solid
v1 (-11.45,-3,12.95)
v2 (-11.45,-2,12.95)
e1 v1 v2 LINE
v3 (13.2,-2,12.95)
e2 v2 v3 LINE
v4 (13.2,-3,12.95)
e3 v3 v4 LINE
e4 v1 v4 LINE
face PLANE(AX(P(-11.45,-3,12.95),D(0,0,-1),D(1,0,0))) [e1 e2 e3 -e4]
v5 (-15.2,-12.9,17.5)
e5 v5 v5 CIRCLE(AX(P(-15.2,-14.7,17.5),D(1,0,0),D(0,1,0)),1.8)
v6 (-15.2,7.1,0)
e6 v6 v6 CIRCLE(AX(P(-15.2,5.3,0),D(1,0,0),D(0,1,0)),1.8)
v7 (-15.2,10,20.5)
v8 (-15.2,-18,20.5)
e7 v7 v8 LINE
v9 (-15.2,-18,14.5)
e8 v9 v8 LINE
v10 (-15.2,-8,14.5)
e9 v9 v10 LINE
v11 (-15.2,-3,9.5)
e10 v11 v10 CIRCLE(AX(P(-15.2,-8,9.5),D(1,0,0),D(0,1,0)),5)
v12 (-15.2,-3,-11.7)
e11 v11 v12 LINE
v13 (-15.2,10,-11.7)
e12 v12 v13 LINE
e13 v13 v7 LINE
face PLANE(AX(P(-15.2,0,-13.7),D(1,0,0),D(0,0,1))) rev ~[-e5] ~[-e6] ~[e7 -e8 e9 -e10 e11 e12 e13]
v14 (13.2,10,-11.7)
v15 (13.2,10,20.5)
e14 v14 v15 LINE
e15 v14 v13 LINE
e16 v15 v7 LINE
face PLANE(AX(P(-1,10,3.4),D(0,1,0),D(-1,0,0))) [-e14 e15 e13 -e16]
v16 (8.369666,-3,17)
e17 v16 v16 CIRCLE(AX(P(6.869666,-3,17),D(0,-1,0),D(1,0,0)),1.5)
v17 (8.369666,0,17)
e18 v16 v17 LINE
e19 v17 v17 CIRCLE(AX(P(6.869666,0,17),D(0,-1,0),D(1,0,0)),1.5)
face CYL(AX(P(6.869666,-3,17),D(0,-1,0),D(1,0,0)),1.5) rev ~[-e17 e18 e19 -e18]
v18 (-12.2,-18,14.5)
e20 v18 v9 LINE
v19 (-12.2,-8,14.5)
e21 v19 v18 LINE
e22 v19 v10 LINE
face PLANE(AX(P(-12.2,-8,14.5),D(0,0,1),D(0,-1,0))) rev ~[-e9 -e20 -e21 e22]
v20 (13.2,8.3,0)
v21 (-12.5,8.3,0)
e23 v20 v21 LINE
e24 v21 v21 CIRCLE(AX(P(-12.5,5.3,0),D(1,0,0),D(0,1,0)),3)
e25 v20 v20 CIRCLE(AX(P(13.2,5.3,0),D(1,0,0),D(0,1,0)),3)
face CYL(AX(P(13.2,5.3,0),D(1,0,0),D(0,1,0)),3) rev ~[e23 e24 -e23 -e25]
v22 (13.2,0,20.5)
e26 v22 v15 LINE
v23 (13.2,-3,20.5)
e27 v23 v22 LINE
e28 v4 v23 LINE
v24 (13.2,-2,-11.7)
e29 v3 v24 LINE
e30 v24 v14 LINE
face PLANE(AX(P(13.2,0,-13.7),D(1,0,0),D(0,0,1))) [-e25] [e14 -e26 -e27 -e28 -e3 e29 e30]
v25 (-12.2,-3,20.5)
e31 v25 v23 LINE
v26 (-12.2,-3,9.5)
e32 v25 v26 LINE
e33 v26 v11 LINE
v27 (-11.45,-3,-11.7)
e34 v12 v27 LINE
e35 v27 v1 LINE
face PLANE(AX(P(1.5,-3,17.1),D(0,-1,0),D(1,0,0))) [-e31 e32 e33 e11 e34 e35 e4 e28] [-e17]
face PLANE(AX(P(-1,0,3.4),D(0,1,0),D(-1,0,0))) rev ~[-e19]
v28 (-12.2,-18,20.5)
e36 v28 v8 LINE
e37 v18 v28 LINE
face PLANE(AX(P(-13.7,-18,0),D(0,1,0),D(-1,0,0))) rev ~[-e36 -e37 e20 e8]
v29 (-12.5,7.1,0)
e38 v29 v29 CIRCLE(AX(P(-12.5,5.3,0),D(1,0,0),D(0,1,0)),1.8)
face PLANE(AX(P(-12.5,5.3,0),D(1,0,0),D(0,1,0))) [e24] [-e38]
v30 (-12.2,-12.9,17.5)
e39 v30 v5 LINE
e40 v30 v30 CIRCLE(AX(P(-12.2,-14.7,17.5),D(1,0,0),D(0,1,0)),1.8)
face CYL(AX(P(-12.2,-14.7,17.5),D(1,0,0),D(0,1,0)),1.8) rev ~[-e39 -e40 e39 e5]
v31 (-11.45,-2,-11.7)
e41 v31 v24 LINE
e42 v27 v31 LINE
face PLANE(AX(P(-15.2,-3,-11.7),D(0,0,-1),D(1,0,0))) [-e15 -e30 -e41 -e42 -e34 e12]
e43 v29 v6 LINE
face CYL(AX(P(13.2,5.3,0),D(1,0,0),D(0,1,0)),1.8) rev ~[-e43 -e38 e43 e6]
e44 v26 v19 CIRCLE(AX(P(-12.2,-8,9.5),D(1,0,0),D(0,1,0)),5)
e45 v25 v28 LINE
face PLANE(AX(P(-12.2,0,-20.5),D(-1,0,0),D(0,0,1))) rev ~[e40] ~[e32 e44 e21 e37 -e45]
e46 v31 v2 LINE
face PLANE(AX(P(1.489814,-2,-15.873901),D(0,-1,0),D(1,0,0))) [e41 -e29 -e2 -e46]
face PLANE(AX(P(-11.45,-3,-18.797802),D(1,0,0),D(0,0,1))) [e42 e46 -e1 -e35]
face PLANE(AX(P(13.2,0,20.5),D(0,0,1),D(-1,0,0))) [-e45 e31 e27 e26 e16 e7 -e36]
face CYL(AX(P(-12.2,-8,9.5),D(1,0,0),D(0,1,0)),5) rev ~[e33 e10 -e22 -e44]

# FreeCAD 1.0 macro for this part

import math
import FreeCAD as App
import Part
import Sketcher
from FreeCAD import Vector


def add_polygon(sketch, points):
    """Adds a closed chain of lines whose ends are joined by coincident constraints."""
    first, n = sketch.GeometryCount, len(points)
    for a, b in zip(points, points[1:] + points[:1]):
        sketch.addGeometry(Part.LineSegment(App.Vector(*a, 0), App.Vector(*b, 0)), False)
    for i in range(n):
        sketch.addConstraint(Sketcher.Constraint("Coincident", first + i, 2, first + (i + 1) % n, 1))

doc = App.newDocument("Part")
body = doc.addObject("PartDesign::Body", "Body")

sketch1 = body.newObject("Sketcher::SketchObject", "Sketch")
sketch1.AttachmentSupport = (doc.getObject("XZ_Plane"), [""])
sketch1.MapMode = "FlatFace"
add_polygon(sketch1, [(-15, 14), (-15, -14), (15, -14), (15, 14)])
sketch1.addConstraint([
    Sketcher.Constraint("Vertical", 0),
    Sketcher.Constraint("Horizontal", 1),
    Sketcher.Constraint("Vertical", 2),
    Sketcher.Constraint("Horizontal", 3),
    Sketcher.Constraint("Symmetric", 0, 2, 2, 2, -1, 1),
    Sketcher.Constraint("DistanceX", 1, 1, 1, 2, 30.4),
    Sketcher.Constraint("DistanceY", 0, 2, 0, 1, 27.4),
])
pad1 = body.newObject("PartDesign::Pad", "Pad")
pad1.Profile = sketch1
pad1.Length = 3

sketch2 = body.newObject("Sketcher::SketchObject", "Sketch001")
sketch2.AttachmentSupport = (doc.getObject("XZ_Plane"), [""])
sketch2.MapMode = "FlatFace"
sketch2.AttachmentOffset = App.Placement(Vector(0, 0, 3), App.Rotation())
add_polygon(sketch2, [(-11, 13), (-11, -13), (14, -13), (14, 13)])
sketch2.addConstraint([
    Sketcher.Constraint("Vertical", 0),
    Sketcher.Constraint("Horizontal", 1),
    Sketcher.Constraint("Vertical", 2),
    Sketcher.Constraint("Horizontal", 3),
    Sketcher.Constraint("Equal", 3, 0),
    Sketcher.Constraint("DistanceX", 1, 1, 1, 2, 25.9),
    Sketcher.Constraint("DistanceX", 0, 2, -1, 1, 11.45),
    Sketcher.Constraint("DistanceY", 0, 2, -1, 1, 12.95),
])
pocket1 = body.newObject("PartDesign::Pocket", "Pocket")
pocket1.Profile = sketch2
pocket1.Length = 1

sketch3 = body.newObject("Sketcher::SketchObject", "Sketch002")
sketch3.AttachmentSupport = (doc.getObject("XZ_Plane"), [""])
sketch3.MapMode = "FlatFace"
add_polygon(sketch3, [(-12.2, 20.5), (-12.2, -20.5), (-15.2, -20.5), (-15.2, 20.5)])
sketch3.addConstraint([
    Sketcher.Constraint("Vertical", 0),
    Sketcher.Constraint("Horizontal", 1),
    Sketcher.Constraint("Vertical", 2),
    Sketcher.Constraint("Horizontal", 3),
    Sketcher.Constraint("DistanceX", 1, 2, 1, 1, 3.0),
    Sketcher.Constraint("DistanceY", 0, 2, 0, 1, 41.0),
    Sketcher.Constraint("DistanceX", 0, 2, -1, 1, 12.2),
    Sketcher.Constraint("DistanceY", 0, 2, -1, 1, 20.5),
])
pad2 = body.newObject("PartDesign::Pad", "Pad001")
pad2.Profile = sketch3
pad2.Length = 18

sketch4 = body.newObject("Sketcher::SketchObject", "Sketch003")
sketch4.AttachmentSupport = (doc.getObject("YZ_Plane"), [""])
sketch4.MapMode = "FlatFace"
sketch4.AttachmentOffset = App.Placement(Vector(0, 0, -12.2), App.Rotation())
sketch4.addGeometry([
    Part.LineSegment(Vector(-18, 14, 0), Vector(-18, -14, 0)),
    Part.LineSegment(Vector(-18, -14, 0), Vector(-8, -14, 0)),
    Part.ArcOfCircle(Part.Circle(Vector(-8, -10, 0), Vector(0, 0, 1), 5), math.radians(-90), math.radians(0)),
    Part.LineSegment(Vector(-3, -10, 0), Vector(-3, 10, 0)),
    Part.ArcOfCircle(Part.Circle(Vector(-8, 10, 0), Vector(0, 0, 1), 5), math.radians(0), math.radians(90)),
    Part.LineSegment(Vector(-8, 14, 0), Vector(-18, 14, 0)),
], False)
sketch4.addConstraint([
    Sketcher.Constraint("Coincident", 0, 2, 1, 1),
    Sketcher.Constraint("Tangent", 1, 2, 2, 1),
    Sketcher.Constraint("Tangent", 2, 2, 3, 1),
    Sketcher.Constraint("Tangent", 3, 2, 4, 1),
    Sketcher.Constraint("Tangent", 4, 2, 5, 1),
    Sketcher.Constraint("Coincident", 5, 2, 0, 1),
    Sketcher.Constraint("Vertical", 0),
    Sketcher.Constraint("Horizontal", 1),
    Sketcher.Constraint("Vertical", 3),
    Sketcher.Constraint("Horizontal", 5),
    Sketcher.Constraint("Equal", 2, 4),
    Sketcher.Constraint("Radius", 2, 5.0),
    Sketcher.Constraint("DistanceX", 1, 1, 1, 2, 10.0),
    Sketcher.Constraint("DistanceY", 0, 2, 0, 1, 29.0),
    Sketcher.Constraint("DistanceX", 2, 3, -1, 1, 8.0),
    Sketcher.Constraint("DistanceY", 2, 3, -1, 1, 9.5),
])
pocket2 = body.newObject("PartDesign::Pocket", "Pocket001")
pocket2.Profile = sketch4
pocket2.Length = 25

sketch5 = body.newObject("Sketcher::SketchObject", "Sketch004")
sketch5.AttachmentSupport = (doc.getObject("YZ_Plane"), [""])
sketch5.MapMode = "FlatFace"
sketch5.AttachmentOffset = App.Placement(Vector(0, 0, -12.2), App.Rotation())
sketch5.addGeometry([
    Part.Circle(Vector(-14.7, -17.5, 0), Vector(0, 0, 1), 1.8),
    Part.Circle(Vector(-14.7, 17.5, 0), Vector(0, 0, 1), 1.8),
], False)
sketch5.addConstraint([
    Sketcher.Constraint("Equal", 0, 1),
    Sketcher.Constraint("Symmetric", 0, 3, 1, 3, -1),
    Sketcher.Constraint("Diameter", 0, 3.6),
    Sketcher.Constraint("DistanceY", 0, 3, 1, 3, 35.0),
    Sketcher.Constraint("DistanceX", 0, 3, -1, 1, 14.7),
])
pocket3 = body.newObject("PartDesign::Pocket", "Pocket002")
pocket3.Profile = sketch5
pocket3.Length = 25

sketch6 = body.newObject("Sketcher::SketchObject", "Sketch005")
sketch6.AttachmentSupport = (doc.getObject("XZ_Plane"), [""])
sketch6.MapMode = "FlatFace"
add_polygon(sketch6, [(-12, 20), (-12, 14), (15, 14), (15, 20)])
sketch6.addConstraint([
    Sketcher.Constraint("Vertical", 0),
    Sketcher.Constraint("Horizontal", 1),
    Sketcher.Constraint("Vertical", 2),
    Sketcher.Constraint("Horizontal", 3),
    Sketcher.Constraint("DistanceX", 1, 1, 1, 2, 27.4),
    Sketcher.Constraint("DistanceY", 0, 2, 0, 1, 6.8),
    Sketcher.Constraint("DistanceX", 0, 2, -1, 1, 12.2),
    Sketcher.Constraint("DistanceY", -1, 1, 0, 2, 13.7),
])
pad3 = body.newObject("PartDesign::Pad", "Pad002")
pad3.Profile = sketch6
pad3.Length = 3

sketch7 = body.newObject("Sketcher::SketchObject", "Sketch006")
sketch7.AttachmentSupport = (doc.getObject("XZ_Plane"), [""])
sketch7.MapMode = "FlatFace"
sketch7.AttachmentOffset = App.Placement(Vector(0, 0, 3), App.Rotation())
sketch7.addGeometry(Part.Circle(Vector(6.9, 17, 0), Vector(0, 0, 1), 1.5), False)
sketch7.addConstraint([
    Sketcher.Constraint("Diameter", 0, 3.0),
    Sketcher.Constraint("DistanceY", -1, 1, 0, 3, 17.0),
    Sketcher.Constraint("DistanceX", -1, 1, 0, 3, 6.869666),
])
pocket4 = body.newObject("PartDesign::Pocket", "Pocket003")
pocket4.Profile = sketch7
pocket4.Type = "ThroughAll"

sketch8 = body.newObject("Sketcher::SketchObject", "Sketch007")
sketch8.AttachmentSupport = (doc.getObject("XZ_Plane"), [""])
sketch8.MapMode = "FlatFace"
sketch8.AttachmentOffset = App.Placement(Vector(0, 0, 3), App.Rotation())
add_polygon(sketch8, [(-21, -10), (-21, -26), (-12, -26), (-12, -10)])
sketch8.addConstraint([
    Sketcher.Constraint("Vertical", 0),
    Sketcher.Constraint("Horizontal", 1),
    Sketcher.Constraint("Vertical", 2),
    Sketcher.Constraint("Horizontal", 3),
    Sketcher.Constraint("DistanceX", 1, 2, -1, 1, 12.2),
    Sketcher.Constraint("DistanceY", 2, 2, -1, 1, 9.5),
    Sketcher.Constraint("DistanceX", 1, 1, 1, 2, 8.900638),
    Sketcher.Constraint("DistanceY", 0, 2, 0, 1, 16.555541),
])
pocket5 = body.newObject("PartDesign::Pocket", "Pocket004")
pocket5.Profile = sketch8
pocket5.Length = 25
pocket5.Reversed = True

sketch9 = body.newObject("Sketcher::SketchObject", "Sketch008")
sketch9.AttachmentSupport = (doc.getObject("XZ_Plane"), [""])
sketch9.MapMode = "FlatFace"
sketch9.AttachmentOffset = App.Placement(Vector(0, 0, 3), App.Rotation())
add_polygon(sketch9, [(-21, -14), (-21, -26), (-12, -26), (-12, -14)])
sketch9.addConstraint([
    Sketcher.Constraint("Vertical", 0),
    Sketcher.Constraint("Horizontal", 1),
    Sketcher.Constraint("Vertical", 2),
    Sketcher.Constraint("Horizontal", 3),
    Sketcher.Constraint("DistanceX", 1, 2, -1, 1, 12.2),
    Sketcher.Constraint("DistanceY", 2, 2, -1, 1, 13.7),
    Sketcher.Constraint("DistanceX", 1, 1, 1, 2, 9.10829),
    Sketcher.Constraint("DistanceY", 0, 2, 0, 1, 12.178418),
])
pocket6 = body.newObject("PartDesign::Pocket", "Pocket005")
pocket6.Profile = sketch9
pocket6.Length = 25

sketch10 = body.newObject("Sketcher::SketchObject", "Sketch009")
sketch10.AttachmentSupport = (doc.getObject("XZ_Plane"), [""])
sketch10.MapMode = "FlatFace"
sketch10.AttachmentOffset = App.Placement(Vector(0, 0, 3), App.Rotation())
add_polygon(sketch10, [(13.2, 20.5), (13.2, -16.6), (15.2, -16.6), (15.2, 20.5)])
sketch10.addConstraint([
    Sketcher.Constraint("Vertical", 0),
    Sketcher.Constraint("Horizontal", 1),
    Sketcher.Constraint("Vertical", 2),
    Sketcher.Constraint("Horizontal", 3),
    Sketcher.Constraint("DistanceX", 1, 1, 1, 2, 2.0),
    Sketcher.Constraint("DistanceX", -1, 1, 0, 2, 13.2),
    Sketcher.Constraint("DistanceY", -1, 1, 2, 2, 20.5),
    Sketcher.Constraint("DistanceY", 0, 2, 0, 1, 37.090502),
])
pocket7 = body.newObject("PartDesign::Pocket", "Pocket006")
pocket7.Profile = sketch10
pocket7.Length = 25

sketch11 = body.newObject("Sketcher::SketchObject", "Sketch010")
sketch11.AttachmentSupport = (doc.getObject("XZ_Plane"), [""])
sketch11.MapMode = "FlatFace"
add_polygon(sketch11, [(13, 20), (13, -14), (-15, -14), (-15, 20)])
sketch11.addConstraint([
    Sketcher.Constraint("Vertical", 0),
    Sketcher.Constraint("Horizontal", 1),
    Sketcher.Constraint("Vertical", 2),
    Sketcher.Constraint("Horizontal", 3),
    Sketcher.Constraint("DistanceX", 1, 2, 1, 1, 28.4),
    Sketcher.Constraint("DistanceY", 0, 2, 0, 1, 34.2),
    Sketcher.Constraint("DistanceX", -1, 1, 0, 2, 13.2),
    Sketcher.Constraint("DistanceY", 0, 2, -1, 1, 13.7),
])
pad4 = body.newObject("PartDesign::Pad", "Pad003")
pad4.Profile = sketch11
pad4.Length = 10
pad4.Reversed = True

sketch12 = body.newObject("Sketcher::SketchObject", "Sketch011")
sketch12.AttachmentSupport = (doc.getObject("YZ_Plane"), [""])
sketch12.MapMode = "FlatFace"
sketch12.AttachmentOffset = App.Placement(Vector(0, 0, 13.2), App.Rotation())
sketch12.addGeometry(Part.Circle(Vector(5.3, 0, 0), Vector(0, 0, 1), 1.8), False)
sketch12.addConstraint([
    Sketcher.Constraint("PointOnObject", 0, 3, -1),
    Sketcher.Constraint("Diameter", 0, 3.6),
    Sketcher.Constraint("DistanceX", -1, 1, 0, 3, 5.3),
])
pocket8 = body.newObject("PartDesign::Pocket", "Pocket007")
pocket8.Profile = sketch12
pocket8.Length = 38.7

sketch13 = body.newObject("Sketcher::SketchObject", "Sketch012")
sketch13.AttachmentSupport = (doc.getObject("YZ_Plane"), [""])
sketch13.MapMode = "FlatFace"
sketch13.AttachmentOffset = App.Placement(Vector(0, 0, 13.2), App.Rotation())
sketch13.addGeometry(Part.Circle(Vector(5.3, 0, 0), Vector(0, 0, 1), 3), False)
sketch13.addConstraint([
    Sketcher.Constraint("PointOnObject", 0, 3, -1),
    Sketcher.Constraint("Diameter", 0, 6.0),
    Sketcher.Constraint("DistanceX", -1, 1, 0, 3, 5.3),
])
pocket9 = body.newObject("PartDesign::Pocket", "Pocket008")
pocket9.Profile = sketch13
pocket9.Length = 25.7

sketch14 = body.newObject("Sketcher::SketchObject", "Sketch013")
sketch14.AttachmentSupport = (doc.getObject("XZ_Plane"), [""])
sketch14.MapMode = "FlatFace"
sketch14.AttachmentOffset = App.Placement(Vector(0, 0, 3), App.Rotation())
add_polygon(sketch14, [(-11, -13), (-11, -19), (14, -19), (14, -13)])
sketch14.addConstraint([
    Sketcher.Constraint("Vertical", 0),
    Sketcher.Constraint("Horizontal", 1),
    Sketcher.Constraint("Vertical", 2),
    Sketcher.Constraint("Horizontal", 3),
    Sketcher.Constraint("DistanceX", 0, 2, -1, 1, 11.45),
    Sketcher.Constraint("DistanceY", 2, 2, -1, 1, 12.95),
    Sketcher.Constraint("DistanceY", 0, 2, 0, 1, 5.847802),
    Sketcher.Constraint("DistanceX", 1, 1, 1, 2, 25.879628),
])
pocket10 = body.newObject("PartDesign::Pocket", "Pocket009")
pocket10.Profile = sketch14
pocket10.Length = 1

sketch15 = body.newObject("Sketcher::SketchObject", "Sketch014")
sketch15.AttachmentSupport = (doc.getObject("XZ_Plane"), [""])
sketch15.MapMode = "FlatFace"
sketch15.AttachmentOffset = App.Placement(Vector(0, 0, 3), App.Rotation())
add_polygon(sketch15, [(-15.2, -11.7), (-15.2, -13.7), (46.6, -13.7), (46.6, -11.7)])
sketch15.addConstraint([
    Sketcher.Constraint("Vertical", 0),
    Sketcher.Constraint("Horizontal", 1),
    Sketcher.Constraint("Vertical", 2),
    Sketcher.Constraint("Horizontal", 3),
    Sketcher.Constraint("DistanceY", 0, 2, 0, 1, 2.0),
    Sketcher.Constraint("DistanceX", 0, 2, -1, 1, 15.2),
    Sketcher.Constraint("DistanceY", 0, 2, -1, 1, 13.7),
    Sketcher.Constraint("DistanceX", 1, 1, 1, 2, 61.760015),
])
pocket11 = body.newObject("PartDesign::Pocket", "Pocket010")
pocket11.Profile = sketch15
pocket11.Length = 25

doc.recompute()
